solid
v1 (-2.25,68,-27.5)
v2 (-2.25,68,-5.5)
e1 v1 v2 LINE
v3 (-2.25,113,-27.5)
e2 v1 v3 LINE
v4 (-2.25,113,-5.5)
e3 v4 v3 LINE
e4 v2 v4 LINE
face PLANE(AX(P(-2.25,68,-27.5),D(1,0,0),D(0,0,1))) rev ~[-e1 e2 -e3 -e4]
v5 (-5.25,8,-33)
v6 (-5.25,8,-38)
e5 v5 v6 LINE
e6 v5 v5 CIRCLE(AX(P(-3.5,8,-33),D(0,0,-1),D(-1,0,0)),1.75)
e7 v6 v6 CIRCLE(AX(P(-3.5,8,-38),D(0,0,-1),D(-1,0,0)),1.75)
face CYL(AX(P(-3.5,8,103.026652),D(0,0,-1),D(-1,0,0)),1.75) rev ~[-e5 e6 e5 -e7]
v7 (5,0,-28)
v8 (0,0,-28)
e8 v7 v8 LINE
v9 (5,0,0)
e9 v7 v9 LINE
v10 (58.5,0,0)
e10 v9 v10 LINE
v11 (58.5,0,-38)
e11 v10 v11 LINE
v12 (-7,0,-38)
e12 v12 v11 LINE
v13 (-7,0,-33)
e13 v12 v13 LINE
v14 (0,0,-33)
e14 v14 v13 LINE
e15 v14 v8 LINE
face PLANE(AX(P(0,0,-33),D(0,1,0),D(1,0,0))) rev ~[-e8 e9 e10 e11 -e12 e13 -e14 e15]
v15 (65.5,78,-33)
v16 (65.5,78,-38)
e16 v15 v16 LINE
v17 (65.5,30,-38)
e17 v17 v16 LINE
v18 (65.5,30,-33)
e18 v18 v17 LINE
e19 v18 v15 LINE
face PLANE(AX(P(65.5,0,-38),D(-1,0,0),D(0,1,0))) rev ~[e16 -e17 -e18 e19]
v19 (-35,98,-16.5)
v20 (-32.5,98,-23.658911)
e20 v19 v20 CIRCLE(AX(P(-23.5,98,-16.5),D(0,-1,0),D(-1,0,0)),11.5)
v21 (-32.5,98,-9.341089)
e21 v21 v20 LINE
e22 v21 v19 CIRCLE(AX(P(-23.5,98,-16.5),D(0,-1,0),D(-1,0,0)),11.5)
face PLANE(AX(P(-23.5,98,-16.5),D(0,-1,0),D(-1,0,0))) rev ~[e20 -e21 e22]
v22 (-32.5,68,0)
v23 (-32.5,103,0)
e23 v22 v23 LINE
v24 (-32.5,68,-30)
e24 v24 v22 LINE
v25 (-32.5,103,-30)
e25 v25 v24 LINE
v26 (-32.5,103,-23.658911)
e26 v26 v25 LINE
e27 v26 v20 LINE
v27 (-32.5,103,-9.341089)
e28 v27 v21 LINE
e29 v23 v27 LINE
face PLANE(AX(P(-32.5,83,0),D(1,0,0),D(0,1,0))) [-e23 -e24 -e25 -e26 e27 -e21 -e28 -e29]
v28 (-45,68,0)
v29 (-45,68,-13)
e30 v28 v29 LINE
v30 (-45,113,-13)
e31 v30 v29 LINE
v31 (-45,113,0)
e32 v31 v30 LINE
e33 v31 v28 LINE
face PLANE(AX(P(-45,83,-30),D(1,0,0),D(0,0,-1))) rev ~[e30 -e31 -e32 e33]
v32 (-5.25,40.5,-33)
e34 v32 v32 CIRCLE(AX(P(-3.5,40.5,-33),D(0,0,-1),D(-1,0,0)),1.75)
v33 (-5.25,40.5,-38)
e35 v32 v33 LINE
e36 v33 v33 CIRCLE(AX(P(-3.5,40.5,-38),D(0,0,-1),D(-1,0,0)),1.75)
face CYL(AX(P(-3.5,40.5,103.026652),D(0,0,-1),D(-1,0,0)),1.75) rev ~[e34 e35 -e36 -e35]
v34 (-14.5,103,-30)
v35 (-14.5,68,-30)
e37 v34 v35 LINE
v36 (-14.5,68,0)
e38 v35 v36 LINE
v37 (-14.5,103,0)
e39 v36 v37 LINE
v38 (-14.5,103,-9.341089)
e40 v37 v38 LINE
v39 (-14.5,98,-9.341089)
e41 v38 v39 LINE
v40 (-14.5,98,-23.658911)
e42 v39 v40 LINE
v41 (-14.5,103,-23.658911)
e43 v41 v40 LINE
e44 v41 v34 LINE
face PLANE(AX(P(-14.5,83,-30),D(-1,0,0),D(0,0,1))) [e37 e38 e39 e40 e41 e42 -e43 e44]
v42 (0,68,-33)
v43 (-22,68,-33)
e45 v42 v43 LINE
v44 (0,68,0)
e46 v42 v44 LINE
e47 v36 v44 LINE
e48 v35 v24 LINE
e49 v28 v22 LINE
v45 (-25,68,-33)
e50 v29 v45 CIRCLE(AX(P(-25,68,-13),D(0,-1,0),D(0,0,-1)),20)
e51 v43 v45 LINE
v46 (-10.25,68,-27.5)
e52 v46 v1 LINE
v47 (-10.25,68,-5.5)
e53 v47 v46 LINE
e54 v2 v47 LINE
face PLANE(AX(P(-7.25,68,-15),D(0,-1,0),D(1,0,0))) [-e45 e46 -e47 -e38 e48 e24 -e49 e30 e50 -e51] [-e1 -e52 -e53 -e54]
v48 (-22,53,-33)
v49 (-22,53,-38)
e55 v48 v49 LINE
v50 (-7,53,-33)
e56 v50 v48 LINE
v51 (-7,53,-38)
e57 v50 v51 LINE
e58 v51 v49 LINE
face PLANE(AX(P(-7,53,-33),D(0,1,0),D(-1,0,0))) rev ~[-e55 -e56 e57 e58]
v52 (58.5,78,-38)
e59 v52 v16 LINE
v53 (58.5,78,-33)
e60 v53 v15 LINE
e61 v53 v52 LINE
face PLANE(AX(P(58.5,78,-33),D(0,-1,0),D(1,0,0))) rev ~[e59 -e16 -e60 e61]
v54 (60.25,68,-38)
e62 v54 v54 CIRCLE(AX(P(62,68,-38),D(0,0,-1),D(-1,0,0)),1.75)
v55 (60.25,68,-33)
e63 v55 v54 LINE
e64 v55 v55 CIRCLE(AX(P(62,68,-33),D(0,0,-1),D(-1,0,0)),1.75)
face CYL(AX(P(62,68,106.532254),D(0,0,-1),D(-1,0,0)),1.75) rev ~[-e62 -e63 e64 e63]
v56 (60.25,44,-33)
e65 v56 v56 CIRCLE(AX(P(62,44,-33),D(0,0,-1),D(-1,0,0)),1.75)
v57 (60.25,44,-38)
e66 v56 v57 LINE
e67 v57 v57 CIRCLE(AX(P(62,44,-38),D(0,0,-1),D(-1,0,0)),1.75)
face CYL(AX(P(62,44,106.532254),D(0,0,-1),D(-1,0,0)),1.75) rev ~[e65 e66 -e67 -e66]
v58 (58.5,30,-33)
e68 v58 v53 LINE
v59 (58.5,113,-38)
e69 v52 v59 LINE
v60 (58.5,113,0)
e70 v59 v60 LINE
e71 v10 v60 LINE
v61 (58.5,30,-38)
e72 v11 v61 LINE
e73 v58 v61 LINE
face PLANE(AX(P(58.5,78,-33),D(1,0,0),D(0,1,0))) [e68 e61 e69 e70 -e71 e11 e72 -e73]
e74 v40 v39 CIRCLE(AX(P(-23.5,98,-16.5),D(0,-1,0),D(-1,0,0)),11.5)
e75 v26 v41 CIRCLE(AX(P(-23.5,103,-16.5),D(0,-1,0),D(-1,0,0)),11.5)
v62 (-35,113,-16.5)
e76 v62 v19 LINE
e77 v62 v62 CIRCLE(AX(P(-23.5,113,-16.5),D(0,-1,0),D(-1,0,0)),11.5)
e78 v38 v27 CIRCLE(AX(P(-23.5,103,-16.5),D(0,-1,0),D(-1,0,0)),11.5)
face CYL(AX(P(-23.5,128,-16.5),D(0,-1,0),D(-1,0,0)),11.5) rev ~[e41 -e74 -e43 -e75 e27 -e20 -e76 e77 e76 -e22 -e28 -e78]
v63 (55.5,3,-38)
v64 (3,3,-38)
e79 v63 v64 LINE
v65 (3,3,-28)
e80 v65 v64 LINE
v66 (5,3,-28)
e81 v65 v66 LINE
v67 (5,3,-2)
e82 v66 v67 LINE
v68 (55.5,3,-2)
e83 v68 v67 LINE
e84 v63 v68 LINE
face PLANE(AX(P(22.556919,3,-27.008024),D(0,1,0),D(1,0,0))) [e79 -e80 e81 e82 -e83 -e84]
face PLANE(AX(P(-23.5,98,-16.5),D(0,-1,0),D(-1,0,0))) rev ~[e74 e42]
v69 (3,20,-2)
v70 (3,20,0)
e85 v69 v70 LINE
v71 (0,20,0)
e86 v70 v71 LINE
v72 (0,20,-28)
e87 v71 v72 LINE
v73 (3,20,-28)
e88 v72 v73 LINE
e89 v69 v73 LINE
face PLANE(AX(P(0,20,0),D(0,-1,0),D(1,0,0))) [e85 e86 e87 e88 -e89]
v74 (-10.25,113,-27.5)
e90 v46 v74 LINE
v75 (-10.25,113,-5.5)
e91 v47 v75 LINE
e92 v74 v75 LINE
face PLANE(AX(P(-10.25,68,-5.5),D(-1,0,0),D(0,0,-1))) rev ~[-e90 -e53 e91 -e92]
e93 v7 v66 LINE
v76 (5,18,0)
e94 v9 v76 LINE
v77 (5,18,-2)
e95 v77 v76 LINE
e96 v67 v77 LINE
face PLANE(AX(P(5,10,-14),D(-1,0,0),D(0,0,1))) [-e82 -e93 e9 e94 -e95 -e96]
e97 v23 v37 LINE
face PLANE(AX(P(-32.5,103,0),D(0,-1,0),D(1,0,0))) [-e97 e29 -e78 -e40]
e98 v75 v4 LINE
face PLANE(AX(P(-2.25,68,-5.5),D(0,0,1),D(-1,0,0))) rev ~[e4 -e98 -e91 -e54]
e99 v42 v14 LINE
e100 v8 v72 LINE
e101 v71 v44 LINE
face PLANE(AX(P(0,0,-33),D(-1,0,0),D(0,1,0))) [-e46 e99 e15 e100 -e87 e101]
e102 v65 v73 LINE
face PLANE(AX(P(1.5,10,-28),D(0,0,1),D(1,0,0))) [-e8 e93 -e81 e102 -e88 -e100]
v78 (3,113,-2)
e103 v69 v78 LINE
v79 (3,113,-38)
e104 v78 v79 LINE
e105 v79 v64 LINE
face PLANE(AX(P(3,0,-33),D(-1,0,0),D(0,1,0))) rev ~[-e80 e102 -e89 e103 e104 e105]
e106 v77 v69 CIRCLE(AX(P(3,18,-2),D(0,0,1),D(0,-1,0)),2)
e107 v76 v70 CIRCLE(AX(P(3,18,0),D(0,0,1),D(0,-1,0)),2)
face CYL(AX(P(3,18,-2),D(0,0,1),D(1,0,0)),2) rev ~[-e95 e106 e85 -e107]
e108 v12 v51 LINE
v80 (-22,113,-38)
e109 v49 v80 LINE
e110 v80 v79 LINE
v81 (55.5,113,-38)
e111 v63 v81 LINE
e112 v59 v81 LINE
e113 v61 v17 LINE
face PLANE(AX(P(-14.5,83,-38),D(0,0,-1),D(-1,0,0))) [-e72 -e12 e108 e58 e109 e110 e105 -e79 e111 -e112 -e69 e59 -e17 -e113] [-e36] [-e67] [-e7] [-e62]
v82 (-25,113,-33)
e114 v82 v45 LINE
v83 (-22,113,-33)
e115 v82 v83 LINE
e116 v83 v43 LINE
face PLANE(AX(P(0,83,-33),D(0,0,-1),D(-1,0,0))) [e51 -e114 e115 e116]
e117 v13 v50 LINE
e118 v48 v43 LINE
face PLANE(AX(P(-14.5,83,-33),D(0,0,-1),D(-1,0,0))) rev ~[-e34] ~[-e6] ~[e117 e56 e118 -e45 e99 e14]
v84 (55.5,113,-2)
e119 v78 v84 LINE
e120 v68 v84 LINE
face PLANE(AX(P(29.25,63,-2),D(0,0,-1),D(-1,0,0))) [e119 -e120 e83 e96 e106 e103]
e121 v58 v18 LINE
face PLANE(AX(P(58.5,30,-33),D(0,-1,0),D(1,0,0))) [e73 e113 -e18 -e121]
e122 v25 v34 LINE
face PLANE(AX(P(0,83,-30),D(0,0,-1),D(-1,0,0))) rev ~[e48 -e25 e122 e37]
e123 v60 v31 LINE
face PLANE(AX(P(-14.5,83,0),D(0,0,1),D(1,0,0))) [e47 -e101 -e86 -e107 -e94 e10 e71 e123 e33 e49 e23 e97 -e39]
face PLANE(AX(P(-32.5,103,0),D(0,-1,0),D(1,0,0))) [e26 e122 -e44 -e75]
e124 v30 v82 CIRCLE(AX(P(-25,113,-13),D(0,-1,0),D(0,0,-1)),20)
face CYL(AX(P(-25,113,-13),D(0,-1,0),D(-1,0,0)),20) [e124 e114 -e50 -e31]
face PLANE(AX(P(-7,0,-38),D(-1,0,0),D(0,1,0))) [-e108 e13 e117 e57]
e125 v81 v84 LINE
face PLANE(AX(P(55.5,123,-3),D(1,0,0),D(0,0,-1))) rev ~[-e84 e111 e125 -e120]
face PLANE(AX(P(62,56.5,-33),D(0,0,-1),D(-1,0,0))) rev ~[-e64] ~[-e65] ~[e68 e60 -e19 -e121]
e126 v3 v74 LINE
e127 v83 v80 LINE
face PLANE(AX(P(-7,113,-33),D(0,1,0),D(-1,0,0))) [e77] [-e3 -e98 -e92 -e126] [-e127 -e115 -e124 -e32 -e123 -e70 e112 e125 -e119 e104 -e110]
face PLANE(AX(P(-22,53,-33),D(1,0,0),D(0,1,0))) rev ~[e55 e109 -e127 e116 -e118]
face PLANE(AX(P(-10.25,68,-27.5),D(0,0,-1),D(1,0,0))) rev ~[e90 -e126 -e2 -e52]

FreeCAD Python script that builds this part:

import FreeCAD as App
import Part
import Sketcher
from FreeCAD import Vector


def edges_at(feature, points):
    """Names of the edges that pass closest to the given points."""
    edges = feature.Shape.Edges
    near = lambda p: min(range(len(edges)), key=lambda i: edges[i].distToShape(Part.Vertex(*p))[0])
    return sorted({f"Edge{near(p) + 1}" for p in points})


def add_polygon(sketch, points):
    """Adds a closed chain of lines whose ends are joined by coincident constraints."""
    first, n = sketch.GeometryCount, len(points)
    for a, b in zip(points, points[1:] + points[:1]):
        sketch.addGeometry(Part.LineSegment(App.Vector(*a, 0), App.Vector(*b, 0)), False)
    for i in range(n):
        sketch.addConstraint(Sketcher.Constraint("Coincident", first + i, 2, first + (i + 1) % n, 1))

doc = App.newDocument("Part")
body = doc.addObject("PartDesign::Body", "Body")

sketch1 = body.newObject("Sketcher::SketchObject", "Sketch")
sketch1.AttachmentSupport = (doc.getObject("XZ_Plane"), [""])
sketch1.MapMode = "FlatFace"
add_polygon(sketch1, [(0, -42), (0, 0), (58, 0), (58, -42)])
sketch1.addConstraint(Sketcher.Constraint("Vertical", 0))
sketch1.addConstraint(Sketcher.Constraint("Horizontal", 1))
sketch1.addConstraint(Sketcher.Constraint("Vertical", 2))
sketch1.addConstraint(Sketcher.Constraint("Horizontal", 3))
sketch1.addConstraint(Sketcher.Constraint("Coincident", 0, 2, -1, 1))
sketch1.addConstraint(Sketcher.Constraint("DistanceY", 0, 1, 0, 2, 42.0))
sketch1.addConstraint(Sketcher.Constraint("DistanceX", 1, 1, 1, 2, 58.5))
pad1 = body.newObject("PartDesign::Pad", "Pad")
pad1.Profile = sketch1
pad1.Length = 123
pad1.Reversed = True

sketch2 = body.newObject("Sketcher::SketchObject", "Sketch001")
sketch2.AttachmentSupport = (doc.getObject("XZ_Plane"), [""])
sketch2.MapMode = "FlatFace"
sketch2.AttachmentOffset = App.Placement(Vector(0, 0, -123), App.Rotation())
add_polygon(sketch2, [(3, -3), (56, -3), (56, -39), (3, -39)])
sketch2.addConstraint(Sketcher.Constraint("Horizontal", 0))
sketch2.addConstraint(Sketcher.Constraint("Vertical", 1))
sketch2.addConstraint(Sketcher.Constraint("Horizontal", 2))
sketch2.addConstraint(Sketcher.Constraint("Vertical", 3))
sketch2.addConstraint(Sketcher.Constraint("DistanceY", 1, 2, 1, 1, 36.0))
sketch2.addConstraint(Sketcher.Constraint("DistanceX", 0, 1, 0, 2, 52.5))
sketch2.addConstraint(Sketcher.Constraint("DistanceY", 0, 2, -1, 1, 3.0))
sketch2.addConstraint(Sketcher.Constraint("DistanceX", -1, 1, 2, 2, 3.0))
pocket1 = body.newObject("PartDesign::Pocket", "Pocket")
pocket1.Profile = sketch2
pocket1.Length = 120
pocket1.Reversed = True

sketch3 = body.newObject("Sketcher::SketchObject", "Sketch002")
sketch3.AttachmentSupport = (doc.getObject("XY_Plane"), [""])
sketch3.MapMode = "FlatFace"
sketch3.AttachmentOffset = App.Placement(Vector(0, 0, -42), App.Rotation())
add_polygon(sketch3, [(58, 123), (58, 0), (0, 0), (0, 123)])
sketch3.addConstraint(Sketcher.Constraint("Vertical", 0))
sketch3.addConstraint(Sketcher.Constraint("Horizontal", 1))
sketch3.addConstraint(Sketcher.Constraint("Vertical", 2))
sketch3.addConstraint(Sketcher.Constraint("Horizontal", 3))
sketch3.addConstraint(Sketcher.Constraint("Coincident", 1, 2, -1, 1))
sketch3.addConstraint(Sketcher.Constraint("DistanceY", 0, 2, 0, 1, 123.0))
sketch3.addConstraint(Sketcher.Constraint("DistanceX", 1, 2, 1, 1, 58.5))
pocket2 = body.newObject("PartDesign::Pocket", "Pocket001")
pocket2.Profile = sketch3
pocket2.Length = 4
pocket2.Reversed = True

sketch4 = body.newObject("Sketcher::SketchObject", "Sketch003")
sketch4.AttachmentSupport = (doc.getObject("XY_Plane"), [""])
sketch4.MapMode = "FlatFace"
sketch4.AttachmentOffset = App.Placement(Vector(0, 0, -3), App.Rotation())
add_polygon(sketch4, [(56, 123), (56, 3), (3, 3), (3, 123)])
sketch4.addConstraint(Sketcher.Constraint("Vertical", 0))
sketch4.addConstraint(Sketcher.Constraint("Horizontal", 1))
sketch4.addConstraint(Sketcher.Constraint("Vertical", 2))
sketch4.addConstraint(Sketcher.Constraint("Horizontal", 3))
sketch4.addConstraint(Sketcher.Constraint("DistanceY", 0, 2, 0, 1, 120.0))
sketch4.addConstraint(Sketcher.Constraint("DistanceX", 1, 2, 1, 1, 52.5))
sketch4.addConstraint(Sketcher.Constraint("DistanceY", -1, 1, 0, 2, 3.0))
sketch4.addConstraint(Sketcher.Constraint("DistanceX", -1, 1, 1, 2, 3.0))
pocket3 = body.newObject("PartDesign::Pocket", "Pocket002")
pocket3.Profile = sketch4
pocket3.Length = 1
pocket3.Reversed = True

sketch5 = body.newObject("Sketcher::SketchObject", "Sketch004")
sketch5.AttachmentSupport = (doc.getObject("XZ_Plane"), [""])
sketch5.MapMode = "FlatFace"
sketch5.AttachmentOffset = App.Placement(Vector(0, 0, -123), App.Rotation())
add_polygon(sketch5, [(0, -38), (0, 0), (58, 0), (58, -38)])
sketch5.addConstraint(Sketcher.Constraint("Vertical", 0))
sketch5.addConstraint(Sketcher.Constraint("Horizontal", 1))
sketch5.addConstraint(Sketcher.Constraint("Vertical", 2))
sketch5.addConstraint(Sketcher.Constraint("Horizontal", 3))
sketch5.addConstraint(Sketcher.Constraint("Coincident", 0, 2, -1, 1))
sketch5.addConstraint(Sketcher.Constraint("DistanceY", 0, 1, 0, 2, 38.0))
sketch5.addConstraint(Sketcher.Constraint("DistanceX", 1, 1, 1, 2, 58.5))
pocket4 = body.newObject("PartDesign::Pocket", "Pocket003")
pocket4.Profile = sketch5
pocket4.Length = 10
pocket4.Reversed = True

sketch6 = body.newObject("Sketcher::SketchObject", "Sketch005")
sketch6.AttachmentSupport = (doc.getObject("XY_Plane"), [""])
sketch6.MapMode = "FlatFace"
sketch6.AttachmentOffset = App.Placement(Vector(0, 0, -38), App.Rotation())
add_polygon(sketch6, [(0, 113), (0, 0), (-7, 0), (-7, 113)])
sketch6.addConstraint(Sketcher.Constraint("Vertical", 0))
sketch6.addConstraint(Sketcher.Constraint("Horizontal", 1))
sketch6.addConstraint(Sketcher.Constraint("Vertical", 2))
sketch6.addConstraint(Sketcher.Constraint("Horizontal", 3))
sketch6.addConstraint(Sketcher.Constraint("Coincident", 0, 2, -1, 1))
sketch6.addConstraint(Sketcher.Constraint("DistanceX", 1, 2, 1, 1, 7.0))
sketch6.addConstraint(Sketcher.Constraint("DistanceY", 0, 2, 0, 1, 113.0))
pad2 = body.newObject("PartDesign::Pad", "Pad001")
pad2.Profile = sketch6
pad2.Length = 5

sketch7 = body.newObject("Sketcher::SketchObject", "Sketch006")
sketch7.AttachmentSupport = (doc.getObject("XY_Plane"), [""])
sketch7.MapMode = "FlatFace"
add_polygon(sketch7, [(0, 20), (0, 0), (3, 0), (3, 20)])
sketch7.addConstraint(Sketcher.Constraint("Vertical", 0))
sketch7.addConstraint(Sketcher.Constraint("Horizontal", 1))
sketch7.addConstraint(Sketcher.Constraint("Vertical", 2))
sketch7.addConstraint(Sketcher.Constraint("Horizontal", 3))
sketch7.addConstraint(Sketcher.Constraint("Coincident", 0, 2, -1, 1))
sketch7.addConstraint(Sketcher.Constraint("DistanceX", 1, 1, 1, 2, 3.0))
sketch7.addConstraint(Sketcher.Constraint("DistanceY", 0, 2, 0, 1, 20.0))
pocket5 = body.newObject("PartDesign::Pocket", "Pocket004")
pocket5.Profile = sketch7
pocket5.Length = 33

sketch8 = body.newObject("Sketcher::SketchObject", "Sketch007")
sketch8.AttachmentSupport = (doc.getObject("XY_Plane"), [""])
sketch8.MapMode = "FlatFace"
sketch8.AttachmentOffset = App.Placement(Vector(0, 0, -33), App.Rotation())
sketch8.addGeometry(Part.Circle(Vector(-3.5, 40.5, 0), Vector(0, 0, 1), 1.8), False)
sketch8.addGeometry(Part.Circle(Vector(-3.5, 8, 0), Vector(0, 0, 1), 1.8), False)
sketch8.addConstraint(Sketcher.Constraint("Equal", 0, 1))
sketch8.addConstraint(Sketcher.Constraint("Vertical", 0, 3, 1, 3))
sketch8.addConstraint(Sketcher.Constraint("Diameter", 0, 3.5))
sketch8.addConstraint(Sketcher.Constraint("DistanceY", -1, 1, 1, 3, 8.0))
sketch8.addConstraint(Sketcher.Constraint("DistanceX", 0, 3, -1, 1, 3.5))
sketch8.addConstraint(Sketcher.Constraint("DistanceY", -1, 1, 0, 3, 40.5))
doc.recompute()
hole = body.newObject("PartDesign::Hole", "Hole")
hole.Profile = sketch8
hole.ThreadType = "None"
hole.Diameter = 3.5
hole.DepthType = "ThroughAll"

sketch9 = body.newObject("Sketcher::SketchObject", "Sketch008")
sketch9.AttachmentSupport = (doc.getObject("XY_Plane"), [""])
sketch9.MapMode = "FlatFace"
sketch9.AttachmentOffset = App.Placement(Vector(0, 0, -38), App.Rotation())
add_polygon(sketch9, [(66, 113), (66, 0), (58, 0), (58, 113)])
sketch9.addConstraint(Sketcher.Constraint("Vertical", 0))
sketch9.addConstraint(Sketcher.Constraint("Horizontal", 1))
sketch9.addConstraint(Sketcher.Constraint("Vertical", 2))
sketch9.addConstraint(Sketcher.Constraint("Horizontal", 3))
sketch9.addConstraint(Sketcher.Constraint("PointOnObject", 0, 2, -1))
sketch9.addConstraint(Sketcher.Constraint("DistanceX", 1, 2, 1, 1, 7.0))
sketch9.addConstraint(Sketcher.Constraint("DistanceY", 0, 2, 0, 1, 113.0))
sketch9.addConstraint(Sketcher.Constraint("DistanceX", -1, 1, 0, 2, 65.5))
pad3 = body.newObject("PartDesign::Pad", "Pad002")
pad3.Profile = sketch9
pad3.Length = 5

sketch10 = body.newObject("Sketcher::SketchObject", "Sketch009")
sketch10.AttachmentSupport = (doc.getObject("XY_Plane"), [""])
sketch10.MapMode = "FlatFace"
sketch10.AttachmentOffset = App.Placement(Vector(0, 0, -33), App.Rotation())
sketch10.addGeometry(Part.Circle(Vector(62, 68, 0), Vector(0, 0, 1), 1.8), False)
sketch10.addGeometry(Part.Circle(Vector(62, 44, 0), Vector(0, 0, 1), 1.8), False)
sketch10.addConstraint(Sketcher.Constraint("Equal", 0, 1))
sketch10.addConstraint(Sketcher.Constraint("Vertical", 0, 3, 1, 3))
sketch10.addConstraint(Sketcher.Constraint("Diameter", 0, 3.5))
sketch10.addConstraint(Sketcher.Constraint("DistanceX", -1, 1, 0, 3, 62.0))
sketch10.addConstraint(Sketcher.Constraint("DistanceY", -1, 1, 0, 3, 68.0))
sketch10.addConstraint(Sketcher.Constraint("DistanceY", -1, 1, 1, 3, 44.0))
doc.recompute()
hole2 = body.newObject("PartDesign::Hole", "Hole001")
hole2.Profile = sketch10
hole2.ThreadType = "None"
hole2.Diameter = 3.5
hole2.DepthType = "ThroughAll"

sketch11 = body.newObject("Sketcher::SketchObject", "Sketch010")
sketch11.AttachmentSupport = (doc.getObject("XY_Plane"), [""])
sketch11.MapMode = "FlatFace"
sketch11.AttachmentOffset = App.Placement(Vector(0, 0, -33), App.Rotation())
add_polygon(sketch11, [(58, 113), (58, 78), (66, 78), (66, 113)])
add_polygon(sketch11, [(58, 30), (58, 0), (66, 0), (66, 30)])
sketch11.addConstraint(Sketcher.Constraint("Vertical", 0))
sketch11.addConstraint(Sketcher.Constraint("Horizontal", 1))
sketch11.addConstraint(Sketcher.Constraint("Vertical", 2))
sketch11.addConstraint(Sketcher.Constraint("Horizontal", 3))
sketch11.addConstraint(Sketcher.Constraint("Vertical", 4))
sketch11.addConstraint(Sketcher.Constraint("Horizontal", 5))
sketch11.addConstraint(Sketcher.Constraint("Vertical", 6))
sketch11.addConstraint(Sketcher.Constraint("Horizontal", 7))
sketch11.addConstraint(Sketcher.Constraint("PointOnObject", 4, 2, -1))
sketch11.addConstraint(Sketcher.Constraint("Vertical", 3, 2, 4, 2))
sketch11.addConstraint(Sketcher.Constraint("Vertical", 2, 2, 5, 2))
sketch11.addConstraint(Sketcher.Constraint("DistanceX", 1, 1, 1, 2, 7.0))
sketch11.addConstraint(Sketcher.Constraint("DistanceY", 0, 2, 0, 1, 35.0))
sketch11.addConstraint(Sketcher.Constraint("DistanceY", 4, 2, 4, 1, 30.0))
sketch11.addConstraint(Sketcher.Constraint("DistanceY", -1, 1, 0, 2, 78.0))
sketch11.addConstraint(Sketcher.Constraint("DistanceX", -1, 1, 0, 2, 58.5))
pocket6 = body.newObject("PartDesign::Pocket", "Pocket005")
pocket6.Profile = sketch11
pocket6.Length = 5

sketch12 = body.newObject("Sketcher::SketchObject", "Sketch011")
sketch12.AttachmentSupport = (doc.getObject("XY_Plane"), [""])
sketch12.MapMode = "FlatFace"
sketch12.AttachmentOffset = App.Placement(Vector(0, 0, -33), App.Rotation())
add_polygon(sketch12, [(0, 20), (0, 0), (3, 0), (3, 20)])
sketch12.addConstraint(Sketcher.Constraint("Vertical", 0))
sketch12.addConstraint(Sketcher.Constraint("Horizontal", 1))
sketch12.addConstraint(Sketcher.Constraint("Vertical", 2))
sketch12.addConstraint(Sketcher.Constraint("Horizontal", 3))
sketch12.addConstraint(Sketcher.Constraint("Coincident", 0, 2, -1, 1))
sketch12.addConstraint(Sketcher.Constraint("DistanceX", 1, 1, 1, 2, 3.0))
sketch12.addConstraint(Sketcher.Constraint("DistanceY", 0, 2, 0, 1, 20.0))
pad4 = body.newObject("PartDesign::Pad", "Pad003")
pad4.Profile = sketch12
pad4.Length = 5

sketch13 = body.newObject("Sketcher::SketchObject", "Sketch012")
sketch13.AttachmentSupport = (doc.getObject("YZ_Plane"), [""])
sketch13.MapMode = "FlatFace"
sketch13.AttachmentOffset = App.Placement(Vector(0, 0, 3), App.Rotation())
add_polygon(sketch13, [(20, -28), (0, -28), (0, 0), (20, 0)])
sketch13.addConstraint(Sketcher.Constraint("Horizontal", 0))
sketch13.addConstraint(Sketcher.Constraint("Vertical", 1))
sketch13.addConstraint(Sketcher.Constraint("Horizontal", 2))
sketch13.addConstraint(Sketcher.Constraint("Vertical", 3))
sketch13.addConstraint(Sketcher.Constraint("Coincident", 1, 2, -1, 1))
sketch13.addConstraint(Sketcher.Constraint("DistanceX", 0, 2, 0, 1, 20.0))
sketch13.addConstraint(Sketcher.Constraint("DistanceY", 1, 1, 1, 2, 28.0))
pocket7 = body.newObject("PartDesign::Pocket", "Pocket006")
pocket7.Profile = sketch13
pocket7.Length = 2
pocket7.Reversed = True
doc.recompute()

fillet = body.newObject("PartDesign::Fillet", "Fillet")
fillet.Base = (pocket7, edges_at(pocket7, [(5, 20, -1)]))
fillet.Radius = 2

sketch14 = body.newObject("Sketcher::SketchObject", "Sketch013")
sketch14.AttachmentSupport = (doc.getObject("YZ_Plane"), [""])
sketch14.MapMode = "FlatFace"
add_polygon(sketch14, [(113, -33), (83, -33), (83, 0), (113, 0)])
sketch14.addConstraint(Sketcher.Constraint("Horizontal", 0))
sketch14.addConstraint(Sketcher.Constraint("Vertical", 1))
sketch14.addConstraint(Sketcher.Constraint("Horizontal", 2))
sketch14.addConstraint(Sketcher.Constraint("Vertical", 3))
sketch14.addConstraint(Sketcher.Constraint("PointOnObject", 1, 2, -1))
sketch14.addConstraint(Sketcher.Constraint("DistanceX", 0, 2, 0, 1, 30.0))
sketch14.addConstraint(Sketcher.Constraint("DistanceY", 1, 1, 1, 2, 33.0))
sketch14.addConstraint(Sketcher.Constraint("DistanceX", -1, 1, 0, 2, 83.0))
pad5 = body.newObject("PartDesign::Pad", "Pad004")
pad5.Profile = sketch14
pad5.Length = 30
pad5.Reversed = True

sketch15 = body.newObject("Sketcher::SketchObject", "Sketch014")
sketch15.AttachmentSupport = (doc.getObject("XZ_Plane"), [""])
sketch15.MapMode = "FlatFace"
sketch15.AttachmentOffset = App.Placement(Vector(0, 0, -113), App.Rotation())
add_polygon(sketch15, [(-45, -33), (-45, 0), (-30, 0), (-30, -33)])
sketch15.addConstraint(Sketcher.Constraint("Vertical", 0))
sketch15.addConstraint(Sketcher.Constraint("Horizontal", 1))
sketch15.addConstraint(Sketcher.Constraint("Vertical", 2))
sketch15.addConstraint(Sketcher.Constraint("Horizontal", 3))
sketch15.addConstraint(Sketcher.Constraint("PointOnObject", 0, 2, -1))
sketch15.addConstraint(Sketcher.Constraint("DistanceX", 1, 1, 1, 2, 15.0))
sketch15.addConstraint(Sketcher.Constraint("DistanceY", 0, 1, 0, 2, 33.0))
sketch15.addConstraint(Sketcher.Constraint("DistanceX", 0, 2, -1, 1, 45.0))
pad6 = body.newObject("PartDesign::Pad", "Pad005")
pad6.Profile = sketch15
pad6.Length = 30

sketch16 = body.newObject("Sketcher::SketchObject", "Sketch015")
sketch16.AttachmentSupport = (doc.getObject("XY_Plane"), [""])
sketch16.MapMode = "FlatFace"
add_polygon(sketch16, [(-32, 103), (-32, 83), (-14, 83), (-14, 103)])
sketch16.addConstraint(Sketcher.Constraint("Vertical", 0))
sketch16.addConstraint(Sketcher.Constraint("Horizontal", 1))
sketch16.addConstraint(Sketcher.Constraint("Vertical", 2))
sketch16.addConstraint(Sketcher.Constraint("Horizontal", 3))
sketch16.addConstraint(Sketcher.Constraint("DistanceX", 1, 1, 1, 2, 18.0))
sketch16.addConstraint(Sketcher.Constraint("DistanceY", 0, 2, 0, 1, 20.0))
sketch16.addConstraint(Sketcher.Constraint("DistanceY", -1, 1, 0, 2, 83.0))
sketch16.addConstraint(Sketcher.Constraint("DistanceX", 0, 2, -1, 1, 32.5))
pocket8 = body.newObject("PartDesign::Pocket", "Pocket007")
pocket8.Profile = sketch16
pocket8.Length = 30

sketch17 = body.newObject("Sketcher::SketchObject", "Sketch016")
sketch17.AttachmentSupport = (doc.getObject("XZ_Plane"), [""])
sketch17.MapMode = "FlatFace"
sketch17.AttachmentOffset = App.Placement(Vector(0, 0, -113), App.Rotation())
sketch17.addGeometry(Part.Circle(Vector(-24, -16, 0), Vector(0, 0, 1), 12), False)
sketch17.addConstraint(Sketcher.Constraint("Diameter", 0, 23.0))
sketch17.addConstraint(Sketcher.Constraint("DistanceX", 0, 3, -1, 1, 23.5))
sketch17.addConstraint(Sketcher.Constraint("DistanceY", 0, 3, -1, 1, 16.5))
doc.recompute()
hole3 = body.newObject("PartDesign::Hole", "Hole002")
hole3.Profile = sketch17
hole3.ThreadType = "None"
hole3.Diameter = 23
hole3.DepthType = "Dimension"
hole3.Depth = 15
hole3.DrillPoint = "Flat"
hole3.Reversed = True

sketch18 = body.newObject("Sketcher::SketchObject", "Sketch017")
sketch18.AttachmentSupport = (doc.getObject("XY_Plane"), [""])
sketch18.MapMode = "FlatFace"
sketch18.AttachmentOffset = App.Placement(Vector(0, 0, -33), App.Rotation())
add_polygon(sketch18, [(-7, 113), (-7, 53), (-22, 53), (-22, 113)])
sketch18.addConstraint(Sketcher.Constraint("Vertical", 0))
sketch18.addConstraint(Sketcher.Constraint("Horizontal", 1))
sketch18.addConstraint(Sketcher.Constraint("Vertical", 2))
sketch18.addConstraint(Sketcher.Constraint("Horizontal", 3))
sketch18.addConstraint(Sketcher.Constraint("DistanceX", 1, 2, 1, 1, 15.0))
sketch18.addConstraint(Sketcher.Constraint("DistanceY", 0, 2, 0, 1, 60.0))
sketch18.addConstraint(Sketcher.Constraint("DistanceX", 0, 2, -1, 1, 7.0))
sketch18.addConstraint(Sketcher.Constraint("DistanceY", -1, 1, 0, 2, 53.0))
pad7 = body.newObject("PartDesign::Pad", "Pad006")
pad7.Profile = sketch18
pad7.Length = 5
pad7.Reversed = True

sketch19 = body.newObject("Sketcher::SketchObject", "Sketch018")
sketch19.AttachmentSupport = (doc.getObject("XZ_Plane"), [""])
sketch19.MapMode = "FlatFace"
sketch19.AttachmentOffset = App.Placement(Vector(0, 0, -83), App.Rotation())
add_polygon(sketch19, [(0, -33), (0, -30), (-45, -30), (-45, -33)])
sketch19.addConstraint(Sketcher.Constraint("Vertical", 0))
sketch19.addConstraint(Sketcher.Constraint("Horizontal", 1))
sketch19.addConstraint(Sketcher.Constraint("Vertical", 2))
sketch19.addConstraint(Sketcher.Constraint("Horizontal", 3))
sketch19.addConstraint(Sketcher.Constraint("PointOnObject", 0, 2, -2))
sketch19.addConstraint(Sketcher.Constraint("DistanceX", 1, 2, 1, 1, 45.0))
sketch19.addConstraint(Sketcher.Constraint("DistanceY", 0, 1, 0, 2, 3.0))
sketch19.addConstraint(Sketcher.Constraint("DistanceY", 0, 2, -1, 1, 30.0))
pad8 = body.newObject("PartDesign::Pad", "Pad007")
pad8.Profile = sketch19
pad8.Length = 15

sketch20 = body.newObject("Sketcher::SketchObject", "Sketch019")
sketch20.AttachmentSupport = (doc.getObject("XZ_Plane"), [""])
sketch20.MapMode = "FlatFace"
sketch20.AttachmentOffset = App.Placement(Vector(0, 0, -83), App.Rotation())
add_polygon(sketch20, [(-14, 0), (-14, -30), (0, -30), (0, 0)])
add_polygon(sketch20, [(-45, 0), (-45, -30), (-32, -30), (-32, 0)])
sketch20.addConstraint(Sketcher.Constraint("Vertical", 0))
sketch20.addConstraint(Sketcher.Constraint("Horizontal", 1))
sketch20.addConstraint(Sketcher.Constraint("Vertical", 2))
sketch20.addConstraint(Sketcher.Constraint("Horizontal", 3))
sketch20.addConstraint(Sketcher.Constraint("Vertical", 4))
sketch20.addConstraint(Sketcher.Constraint("Horizontal", 5))
sketch20.addConstraint(Sketcher.Constraint("Vertical", 6))
sketch20.addConstraint(Sketcher.Constraint("Horizontal", 7))
sketch20.addConstraint(Sketcher.Constraint("Coincident", 2, 2, -1, 1))
sketch20.addConstraint(Sketcher.Constraint("PointOnObject", 6, 2, -1))
sketch20.addConstraint(Sketcher.Constraint("Horizontal", 1, 2, 4, 2))
sketch20.addConstraint(Sketcher.Constraint("DistanceY", 0, 2, 0, 1, 30.0))
sketch20.addConstraint(Sketcher.Constraint("DistanceX", 1, 1, 1, 2, 14.5))
sketch20.addConstraint(Sketcher.Constraint("DistanceX", 5, 1, 5, 2, 12.5))
sketch20.addConstraint(Sketcher.Constraint("DistanceX", 4, 2, -1, 1, 45.0))
pad9 = body.newObject("PartDesign::Pad", "Pad008")
pad9.Profile = sketch20
pad9.Length = 15
doc.recompute()

fillet2 = body.newObject("PartDesign::Fillet", "Fillet001")
fillet2.Base = (pad9, edges_at(pad9, [(-45, 90.5, -33)]))
fillet2.Radius = 20

sketch21 = body.newObject("Sketcher::SketchObject", "Sketch020")
sketch21.AttachmentSupport = (doc.getObject("XZ_Plane"), [""])
sketch21.MapMode = "FlatFace"
sketch21.AttachmentOffset = App.Placement(Vector(0, 0, -68), App.Rotation())
add_polygon(sketch21, [(-10, -6), (-10, -28), (-2, -28), (-2, -6)])
sketch21.addConstraint(Sketcher.Constraint("Vertical", 0))
sketch21.addConstraint(Sketcher.Constraint("Horizontal", 1))
sketch21.addConstraint(Sketcher.Constraint("Vertical", 2))
sketch21.addConstraint(Sketcher.Constraint("Horizontal", 3))
sketch21.addConstraint(Sketcher.Constraint("DistanceX", 1, 1, 1, 2, 8.0))
sketch21.addConstraint(Sketcher.Constraint("DistanceY", 0, 2, 0, 1, 22.0))
sketch21.addConstraint(Sketcher.Constraint("DistanceY", 0, 2, -1, 1, 27.5))
sketch21.addConstraint(Sketcher.Constraint("DistanceX", 0, 2, -1, 1, 10.25))
pocket9 = body.newObject("PartDesign::Pocket", "Pocket008")
pocket9.Profile = sketch21
pocket9.Type = "ThroughAll"

doc.recompute()
